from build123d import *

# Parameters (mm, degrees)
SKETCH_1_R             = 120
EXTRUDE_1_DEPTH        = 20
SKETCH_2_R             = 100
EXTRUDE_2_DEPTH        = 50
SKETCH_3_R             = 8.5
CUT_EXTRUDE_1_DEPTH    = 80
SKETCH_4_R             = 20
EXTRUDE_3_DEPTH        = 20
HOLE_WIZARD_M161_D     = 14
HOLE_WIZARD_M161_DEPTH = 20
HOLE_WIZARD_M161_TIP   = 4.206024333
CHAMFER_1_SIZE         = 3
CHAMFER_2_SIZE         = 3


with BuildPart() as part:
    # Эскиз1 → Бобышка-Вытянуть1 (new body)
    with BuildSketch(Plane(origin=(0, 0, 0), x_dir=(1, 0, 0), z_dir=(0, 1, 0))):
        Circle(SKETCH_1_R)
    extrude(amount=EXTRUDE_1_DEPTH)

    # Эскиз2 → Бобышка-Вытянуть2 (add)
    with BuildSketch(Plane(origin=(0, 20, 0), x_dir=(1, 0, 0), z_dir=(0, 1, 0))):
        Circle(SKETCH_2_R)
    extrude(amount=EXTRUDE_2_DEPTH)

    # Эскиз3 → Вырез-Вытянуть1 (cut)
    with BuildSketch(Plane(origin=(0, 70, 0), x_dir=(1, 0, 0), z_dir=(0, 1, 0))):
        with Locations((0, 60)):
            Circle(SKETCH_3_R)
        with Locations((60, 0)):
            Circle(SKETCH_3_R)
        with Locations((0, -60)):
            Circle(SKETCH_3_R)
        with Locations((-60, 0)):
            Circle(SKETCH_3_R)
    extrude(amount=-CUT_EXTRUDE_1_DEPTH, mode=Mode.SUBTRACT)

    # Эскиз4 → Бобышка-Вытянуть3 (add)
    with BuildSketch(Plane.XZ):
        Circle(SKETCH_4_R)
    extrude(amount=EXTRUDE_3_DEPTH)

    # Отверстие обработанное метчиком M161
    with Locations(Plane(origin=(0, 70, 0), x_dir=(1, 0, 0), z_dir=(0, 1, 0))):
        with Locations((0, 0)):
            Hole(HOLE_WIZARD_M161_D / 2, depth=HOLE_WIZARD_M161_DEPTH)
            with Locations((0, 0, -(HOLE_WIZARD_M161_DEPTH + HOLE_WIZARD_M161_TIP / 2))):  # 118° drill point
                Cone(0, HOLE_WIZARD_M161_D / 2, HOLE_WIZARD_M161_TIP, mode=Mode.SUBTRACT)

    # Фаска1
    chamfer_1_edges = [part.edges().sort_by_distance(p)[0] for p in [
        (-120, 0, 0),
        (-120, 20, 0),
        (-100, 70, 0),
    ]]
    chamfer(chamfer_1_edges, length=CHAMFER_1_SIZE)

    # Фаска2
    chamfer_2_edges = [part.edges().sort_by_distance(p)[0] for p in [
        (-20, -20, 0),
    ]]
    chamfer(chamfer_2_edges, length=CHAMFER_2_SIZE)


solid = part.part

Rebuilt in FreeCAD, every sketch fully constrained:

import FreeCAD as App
import Part
import Sketcher


def edges_at(feature, points):
    """Names of the edges that pass closest to the given points."""
    edges = feature.Shape.Edges
    near = lambda p: min(range(len(edges)), key=lambda i: edges[i].distToShape(Part.Vertex(*p))[0])
    return sorted({f"Edge{near(p) + 1}" for p in points})

doc = App.newDocument("Part")
params = doc.addObject("Spreadsheet::Sheet", "Params")
for row, (alias, value) in enumerate([
    ("sketch1_diameter", "240 mm"),
    ("pad1_length", "20 mm"),
    ("sketch2_diameter", "200 mm"),
    ("pad2_length", "50 mm"),
    ("sketch3_diameter", "17 mm"),
    ("pocket1_length", "80 mm"),
    ("sketch4_diameter", "40 mm"),
    ("pad3_length", "20 mm"),
    ("sketch5_diameter", "14 mm"),
    ("hole_diameter", "14 mm"),
    ("hole_depth", "20 mm"),
    ("chamfer_size", "3 mm"),
    ("chamfer2_size", "3 mm"),
], start=1):
    params.set(f"A{row}", alias)
    params.set(f"B{row}", "=" + value)
    params.setAlias(f"B{row}", alias)

body = doc.addObject("PartDesign::Body", "Body")

# Sketch on XZ plane
sketch1 = body.newObject("Sketcher::SketchObject", "Sketch")
sketch1.AttachmentSupport = (doc.getObject("XZ_Plane"), [""])
sketch1.MapMode = "FlatFace"
sketch1.addGeometry(Part.Circle(App.Vector(0, 0, 0), App.Vector(0, 0, 1), 120), False)
sketch1.addConstraint([
    Sketcher.Constraint("Coincident", 0, 3, -1, 1),
    Sketcher.Constraint("Diameter", 0, 240.0),
])
sketch1.setExpression("Constraints[1]", "Params.sketch1_diameter")
pad1 = body.newObject("PartDesign::Pad", "Pad")
pad1.Profile = sketch1
pad1.setExpression("Length", "Params.pad1_length")
pad1.Reversed = True

# Sketch on XZ plane
sketch2 = body.newObject("Sketcher::SketchObject", "Sketch001")
sketch2.AttachmentSupport = (doc.getObject("XZ_Plane"), [""])
sketch2.MapMode = "FlatFace"
sketch2.AttachmentOffset = App.Placement(App.Vector(0, 0, -20), App.Rotation())
sketch2.addGeometry(Part.Circle(App.Vector(0, 0, 0), App.Vector(0, 0, 1), 100), False)
sketch2.addConstraint([
    Sketcher.Constraint("Coincident", 0, 3, -1, 1),
    Sketcher.Constraint("Diameter", 0, 200.0),
])
sketch2.setExpression("Constraints[1]", "Params.sketch2_diameter")
pad2 = body.newObject("PartDesign::Pad", "Pad001")
pad2.Profile = sketch2
pad2.setExpression("Length", "Params.pad2_length")
pad2.Reversed = True

# Sketch on XZ plane
sketch3 = body.newObject("Sketcher::SketchObject", "Sketch002")
sketch3.AttachmentSupport = (doc.getObject("XZ_Plane"), [""])
sketch3.MapMode = "FlatFace"
sketch3.AttachmentOffset = App.Placement(App.Vector(0, 0, -70), App.Rotation())
sketch3.addGeometry([
    Part.Circle(App.Vector(0, -60, 0), App.Vector(0, 0, 1), 8.5),
    Part.Circle(App.Vector(60, 0, 0), App.Vector(0, 0, 1), 8.5),
    Part.Circle(App.Vector(0, 60, 0), App.Vector(0, 0, 1), 8.5),
    Part.Circle(App.Vector(-60, 0, 0), App.Vector(0, 0, 1), 8.5),
], False)
sketch3.addConstraint([
    Sketcher.Constraint("Equal", 0, 1),
    Sketcher.Constraint("Equal", 1, 2),
    Sketcher.Constraint("Equal", 2, 3),
    Sketcher.Constraint("Symmetric", 0, 3, 2, 3, -1, 1),
    Sketcher.Constraint("Symmetric", 1, 3, 3, 3, -1, 1),
    Sketcher.Constraint("PointOnObject", 0, 3, -2),
    Sketcher.Constraint("PointOnObject", 1, 3, -1),
    Sketcher.Constraint("Diameter", 0, 17.0),
    Sketcher.Constraint("DistanceY", 0, 3, -1, 1, 60.0),
    Sketcher.Constraint("DistanceX", -1, 1, 1, 3, 60.0),
])
sketch3.setExpression("Constraints[7]", "Params.sketch3_diameter")
pocket1 = body.newObject("PartDesign::Pocket", "Pocket")
pocket1.Profile = sketch3
pocket1.setExpression("Length", "Params.pocket1_length")
pocket1.Reversed = True

# Sketch on XZ plane
sketch4 = body.newObject("Sketcher::SketchObject", "Sketch003")
sketch4.AttachmentSupport = (doc.getObject("XZ_Plane"), [""])
sketch4.MapMode = "FlatFace"
sketch4.addGeometry(Part.Circle(App.Vector(0, 0, 0), App.Vector(0, 0, 1), 20), False)
sketch4.addConstraint([
    Sketcher.Constraint("Coincident", 0, 3, -1, 1),
    Sketcher.Constraint("Diameter", 0, 40.0),
])
sketch4.setExpression("Constraints[1]", "Params.sketch4_diameter")
pad3 = body.newObject("PartDesign::Pad", "Pad002")
pad3.Profile = sketch4
pad3.setExpression("Length", "Params.pad3_length")

# Sketch on XZ plane
sketch5 = body.newObject("Sketcher::SketchObject", "Sketch004")
sketch5.AttachmentSupport = (doc.getObject("XZ_Plane"), [""])
sketch5.MapMode = "FlatFace"
sketch5.AttachmentOffset = App.Placement(App.Vector(0, 0, -70), App.Rotation())
sketch5.addGeometry(Part.Circle(App.Vector(0, 0, 0), App.Vector(0, 0, 1), 7), False)
sketch5.addConstraint([
    Sketcher.Constraint("Coincident", 0, 3, -1, 1),
    Sketcher.Constraint("Diameter", 0, 14.0),
])
sketch5.setExpression("Constraints[1]", "Params.sketch5_diameter")
doc.recompute()
hole = body.newObject("PartDesign::Hole", "Hole")
hole.Profile = sketch5
hole.ThreadType = "None"
hole.setExpression("Diameter", "Params.hole_diameter")
hole.DepthType = "Dimension"
hole.setExpression("Depth", "Params.hole_depth")
hole.DrillPoint = "Angled"
hole.DrillPointAngle = 118
hole.Reversed = True
doc.recompute()

chamfer = body.newObject("PartDesign::Chamfer", "Chamfer")
chamfer.Base = (hole, edges_at(hole, [(-120, 0, 0), (-120, 20, 0), (-100, 70, 0)]))
chamfer.setExpression("Size", "Params.chamfer_size")
doc.recompute()

chamfer2 = body.newObject("PartDesign::Chamfer", "Chamfer001")
chamfer2.Base = (chamfer, edges_at(chamfer, [(-20, -20, 0)]))
chamfer2.setExpression("Size", "Params.chamfer2_size")

doc.recompute()
